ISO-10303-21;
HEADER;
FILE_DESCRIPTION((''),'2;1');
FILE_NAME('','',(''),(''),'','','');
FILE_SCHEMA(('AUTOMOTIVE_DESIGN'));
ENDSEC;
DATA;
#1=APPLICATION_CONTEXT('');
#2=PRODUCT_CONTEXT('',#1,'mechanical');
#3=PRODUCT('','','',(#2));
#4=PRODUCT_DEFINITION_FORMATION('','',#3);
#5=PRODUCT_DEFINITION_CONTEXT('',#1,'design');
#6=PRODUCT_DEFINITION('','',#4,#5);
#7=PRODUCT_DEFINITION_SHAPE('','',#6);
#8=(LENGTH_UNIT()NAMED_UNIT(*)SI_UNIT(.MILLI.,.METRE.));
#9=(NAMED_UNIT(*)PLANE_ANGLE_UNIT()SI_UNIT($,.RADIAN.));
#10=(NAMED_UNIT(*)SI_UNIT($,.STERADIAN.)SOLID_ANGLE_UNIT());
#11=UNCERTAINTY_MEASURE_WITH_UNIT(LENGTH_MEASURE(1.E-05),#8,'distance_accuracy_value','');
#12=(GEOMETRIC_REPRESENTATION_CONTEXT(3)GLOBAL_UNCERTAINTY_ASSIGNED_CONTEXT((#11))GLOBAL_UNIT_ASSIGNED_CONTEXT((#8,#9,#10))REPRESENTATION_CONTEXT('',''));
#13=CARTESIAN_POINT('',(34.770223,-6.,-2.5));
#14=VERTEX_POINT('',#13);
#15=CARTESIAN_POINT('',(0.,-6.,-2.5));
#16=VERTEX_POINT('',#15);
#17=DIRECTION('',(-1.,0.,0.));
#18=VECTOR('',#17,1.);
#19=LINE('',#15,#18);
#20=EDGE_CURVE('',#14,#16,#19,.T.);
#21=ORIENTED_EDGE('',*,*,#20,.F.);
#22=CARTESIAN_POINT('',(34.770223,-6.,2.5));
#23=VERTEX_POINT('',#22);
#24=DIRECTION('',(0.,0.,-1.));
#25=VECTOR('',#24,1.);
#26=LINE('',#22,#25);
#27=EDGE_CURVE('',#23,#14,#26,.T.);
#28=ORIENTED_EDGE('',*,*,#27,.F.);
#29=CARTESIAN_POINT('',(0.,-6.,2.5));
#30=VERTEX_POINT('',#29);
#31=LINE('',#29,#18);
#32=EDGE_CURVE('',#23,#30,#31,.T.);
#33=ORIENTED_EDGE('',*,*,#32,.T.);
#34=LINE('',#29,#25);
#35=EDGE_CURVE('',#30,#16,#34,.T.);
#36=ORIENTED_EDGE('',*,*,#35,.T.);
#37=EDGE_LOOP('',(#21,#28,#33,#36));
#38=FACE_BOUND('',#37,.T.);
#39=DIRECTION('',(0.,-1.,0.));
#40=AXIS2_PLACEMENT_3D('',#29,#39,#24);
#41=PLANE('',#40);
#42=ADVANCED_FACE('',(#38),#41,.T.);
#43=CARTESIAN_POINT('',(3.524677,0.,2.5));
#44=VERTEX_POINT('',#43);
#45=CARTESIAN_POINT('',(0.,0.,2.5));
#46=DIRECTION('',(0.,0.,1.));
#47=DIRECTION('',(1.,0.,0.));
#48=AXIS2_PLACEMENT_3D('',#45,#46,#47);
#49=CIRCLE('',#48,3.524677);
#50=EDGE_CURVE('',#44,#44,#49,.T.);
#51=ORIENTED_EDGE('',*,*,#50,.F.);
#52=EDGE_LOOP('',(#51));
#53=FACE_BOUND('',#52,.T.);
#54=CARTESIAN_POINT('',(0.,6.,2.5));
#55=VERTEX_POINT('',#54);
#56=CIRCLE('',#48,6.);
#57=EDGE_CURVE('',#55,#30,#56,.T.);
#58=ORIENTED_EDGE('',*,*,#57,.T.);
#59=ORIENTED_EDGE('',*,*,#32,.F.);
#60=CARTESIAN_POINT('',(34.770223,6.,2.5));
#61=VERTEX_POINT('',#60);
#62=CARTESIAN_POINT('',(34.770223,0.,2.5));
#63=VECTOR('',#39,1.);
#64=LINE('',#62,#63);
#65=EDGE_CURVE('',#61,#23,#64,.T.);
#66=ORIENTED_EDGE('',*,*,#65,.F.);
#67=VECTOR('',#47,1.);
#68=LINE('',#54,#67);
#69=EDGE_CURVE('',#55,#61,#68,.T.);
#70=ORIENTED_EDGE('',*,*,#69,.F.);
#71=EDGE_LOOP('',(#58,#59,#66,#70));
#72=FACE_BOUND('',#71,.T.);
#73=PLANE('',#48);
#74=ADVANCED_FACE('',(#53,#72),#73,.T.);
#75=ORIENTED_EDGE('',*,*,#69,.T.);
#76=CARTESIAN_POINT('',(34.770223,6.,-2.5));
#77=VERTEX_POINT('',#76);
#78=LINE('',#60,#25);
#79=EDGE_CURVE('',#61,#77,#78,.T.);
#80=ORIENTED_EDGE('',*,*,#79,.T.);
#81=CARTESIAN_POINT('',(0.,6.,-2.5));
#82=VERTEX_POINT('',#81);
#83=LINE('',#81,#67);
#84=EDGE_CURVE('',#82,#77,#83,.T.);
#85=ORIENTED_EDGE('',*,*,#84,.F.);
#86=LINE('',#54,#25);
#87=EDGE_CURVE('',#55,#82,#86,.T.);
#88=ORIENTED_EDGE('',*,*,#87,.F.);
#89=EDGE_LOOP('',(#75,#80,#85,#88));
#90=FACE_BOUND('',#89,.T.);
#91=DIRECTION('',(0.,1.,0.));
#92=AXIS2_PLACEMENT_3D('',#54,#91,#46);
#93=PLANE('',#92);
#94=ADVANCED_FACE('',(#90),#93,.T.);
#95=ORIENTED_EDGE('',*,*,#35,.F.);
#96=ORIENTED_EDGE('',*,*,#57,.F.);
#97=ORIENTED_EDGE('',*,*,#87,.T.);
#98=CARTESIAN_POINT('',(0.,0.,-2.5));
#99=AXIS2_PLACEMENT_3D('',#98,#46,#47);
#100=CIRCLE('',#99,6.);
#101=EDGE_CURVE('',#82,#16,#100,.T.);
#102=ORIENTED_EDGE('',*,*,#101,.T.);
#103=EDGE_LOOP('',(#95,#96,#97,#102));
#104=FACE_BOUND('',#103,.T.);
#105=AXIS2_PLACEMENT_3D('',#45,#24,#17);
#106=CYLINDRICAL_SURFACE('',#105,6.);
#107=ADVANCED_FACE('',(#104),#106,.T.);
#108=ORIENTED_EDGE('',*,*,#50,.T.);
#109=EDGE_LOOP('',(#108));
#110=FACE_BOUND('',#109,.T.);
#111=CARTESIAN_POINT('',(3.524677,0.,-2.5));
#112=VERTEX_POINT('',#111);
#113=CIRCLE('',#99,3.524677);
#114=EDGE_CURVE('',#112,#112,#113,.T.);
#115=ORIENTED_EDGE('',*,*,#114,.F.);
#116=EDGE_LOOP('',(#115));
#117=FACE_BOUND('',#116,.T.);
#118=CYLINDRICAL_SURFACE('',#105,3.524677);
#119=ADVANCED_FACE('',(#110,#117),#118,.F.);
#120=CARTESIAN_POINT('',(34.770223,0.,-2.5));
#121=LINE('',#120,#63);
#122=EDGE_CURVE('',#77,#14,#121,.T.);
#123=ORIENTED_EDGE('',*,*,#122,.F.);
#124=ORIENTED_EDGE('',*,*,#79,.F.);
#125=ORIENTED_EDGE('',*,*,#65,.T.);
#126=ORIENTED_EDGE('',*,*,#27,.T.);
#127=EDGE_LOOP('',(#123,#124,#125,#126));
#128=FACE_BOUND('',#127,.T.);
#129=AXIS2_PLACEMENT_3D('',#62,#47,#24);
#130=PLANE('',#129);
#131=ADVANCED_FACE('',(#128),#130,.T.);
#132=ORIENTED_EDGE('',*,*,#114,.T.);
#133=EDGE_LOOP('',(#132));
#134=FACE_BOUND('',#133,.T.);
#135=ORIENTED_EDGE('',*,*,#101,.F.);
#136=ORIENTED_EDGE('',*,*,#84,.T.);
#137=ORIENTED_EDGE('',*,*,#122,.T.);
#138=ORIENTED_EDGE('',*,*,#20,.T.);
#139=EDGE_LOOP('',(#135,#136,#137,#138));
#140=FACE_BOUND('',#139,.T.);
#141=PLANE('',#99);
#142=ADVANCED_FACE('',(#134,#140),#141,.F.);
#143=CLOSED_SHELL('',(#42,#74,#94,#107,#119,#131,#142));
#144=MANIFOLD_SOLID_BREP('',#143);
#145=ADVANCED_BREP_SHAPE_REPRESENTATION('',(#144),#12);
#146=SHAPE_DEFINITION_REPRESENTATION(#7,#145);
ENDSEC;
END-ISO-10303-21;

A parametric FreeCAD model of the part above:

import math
import FreeCAD as App
import Part
import Sketcher

V = App.Vector

doc = App.newDocument("Part")
body = doc.addObject("PartDesign::Body", "Body")

# Sketch on XY plane
sketch1 = doc.addObject("Sketcher::SketchObject", "Sketch")
body.addObject(sketch1)
sketch1.AttachmentSupport = (doc.XY_Plane, [""])
sketch1.MapMode = "FlatFace"
sketch1.addGeometry([
    Part.LineSegment(V(34.8, 6, 0), V(0, 6, 0)),  # 0
    Part.ArcOfCircle(Part.Circle(V(0, 0, 0), V(0, 0, 1), 6), math.radians(90), math.radians(270)),  # 1
    Part.LineSegment(V(0, -6, 0), V(34.8, -6, 0)),  # 2
    Part.LineSegment(V(34.8, -6, 0), V(34.8, 6, 0)),  # 3
    Part.Circle(V(0, 0, 0), V(0, 0, 1), 3.5),  # 4
], False)
sketch1.addConstraint([
    Sketcher.Constraint("Tangent", 0, 2, 1, 1),
    Sketcher.Constraint("Tangent", 1, 2, 2, 1),
    Sketcher.Constraint("Coincident", 2, 2, 3, 1),
    Sketcher.Constraint("Coincident", 3, 2, 0, 1),
    Sketcher.Constraint("Horizontal", 0),
    Sketcher.Constraint("Horizontal", 2),
    Sketcher.Constraint("Vertical", 3),
    Sketcher.Constraint("Coincident", 1, 3, -1, 1),
    Sketcher.Constraint("Coincident", 4, 3, -1, 1),
    Sketcher.Constraint("Radius", 1, 6.0),
    Sketcher.Constraint("Diameter", 4, 7.049353),
    Sketcher.Constraint("DistanceX", 0, 2, 0, 1, 34.770223),
])
pad1 = doc.addObject("PartDesign::Pad", "Pad")
body.addObject(pad1)
pad1.Profile = sketch1
pad1.Length = 5
pad1.Midplane = True

doc.recompute()
